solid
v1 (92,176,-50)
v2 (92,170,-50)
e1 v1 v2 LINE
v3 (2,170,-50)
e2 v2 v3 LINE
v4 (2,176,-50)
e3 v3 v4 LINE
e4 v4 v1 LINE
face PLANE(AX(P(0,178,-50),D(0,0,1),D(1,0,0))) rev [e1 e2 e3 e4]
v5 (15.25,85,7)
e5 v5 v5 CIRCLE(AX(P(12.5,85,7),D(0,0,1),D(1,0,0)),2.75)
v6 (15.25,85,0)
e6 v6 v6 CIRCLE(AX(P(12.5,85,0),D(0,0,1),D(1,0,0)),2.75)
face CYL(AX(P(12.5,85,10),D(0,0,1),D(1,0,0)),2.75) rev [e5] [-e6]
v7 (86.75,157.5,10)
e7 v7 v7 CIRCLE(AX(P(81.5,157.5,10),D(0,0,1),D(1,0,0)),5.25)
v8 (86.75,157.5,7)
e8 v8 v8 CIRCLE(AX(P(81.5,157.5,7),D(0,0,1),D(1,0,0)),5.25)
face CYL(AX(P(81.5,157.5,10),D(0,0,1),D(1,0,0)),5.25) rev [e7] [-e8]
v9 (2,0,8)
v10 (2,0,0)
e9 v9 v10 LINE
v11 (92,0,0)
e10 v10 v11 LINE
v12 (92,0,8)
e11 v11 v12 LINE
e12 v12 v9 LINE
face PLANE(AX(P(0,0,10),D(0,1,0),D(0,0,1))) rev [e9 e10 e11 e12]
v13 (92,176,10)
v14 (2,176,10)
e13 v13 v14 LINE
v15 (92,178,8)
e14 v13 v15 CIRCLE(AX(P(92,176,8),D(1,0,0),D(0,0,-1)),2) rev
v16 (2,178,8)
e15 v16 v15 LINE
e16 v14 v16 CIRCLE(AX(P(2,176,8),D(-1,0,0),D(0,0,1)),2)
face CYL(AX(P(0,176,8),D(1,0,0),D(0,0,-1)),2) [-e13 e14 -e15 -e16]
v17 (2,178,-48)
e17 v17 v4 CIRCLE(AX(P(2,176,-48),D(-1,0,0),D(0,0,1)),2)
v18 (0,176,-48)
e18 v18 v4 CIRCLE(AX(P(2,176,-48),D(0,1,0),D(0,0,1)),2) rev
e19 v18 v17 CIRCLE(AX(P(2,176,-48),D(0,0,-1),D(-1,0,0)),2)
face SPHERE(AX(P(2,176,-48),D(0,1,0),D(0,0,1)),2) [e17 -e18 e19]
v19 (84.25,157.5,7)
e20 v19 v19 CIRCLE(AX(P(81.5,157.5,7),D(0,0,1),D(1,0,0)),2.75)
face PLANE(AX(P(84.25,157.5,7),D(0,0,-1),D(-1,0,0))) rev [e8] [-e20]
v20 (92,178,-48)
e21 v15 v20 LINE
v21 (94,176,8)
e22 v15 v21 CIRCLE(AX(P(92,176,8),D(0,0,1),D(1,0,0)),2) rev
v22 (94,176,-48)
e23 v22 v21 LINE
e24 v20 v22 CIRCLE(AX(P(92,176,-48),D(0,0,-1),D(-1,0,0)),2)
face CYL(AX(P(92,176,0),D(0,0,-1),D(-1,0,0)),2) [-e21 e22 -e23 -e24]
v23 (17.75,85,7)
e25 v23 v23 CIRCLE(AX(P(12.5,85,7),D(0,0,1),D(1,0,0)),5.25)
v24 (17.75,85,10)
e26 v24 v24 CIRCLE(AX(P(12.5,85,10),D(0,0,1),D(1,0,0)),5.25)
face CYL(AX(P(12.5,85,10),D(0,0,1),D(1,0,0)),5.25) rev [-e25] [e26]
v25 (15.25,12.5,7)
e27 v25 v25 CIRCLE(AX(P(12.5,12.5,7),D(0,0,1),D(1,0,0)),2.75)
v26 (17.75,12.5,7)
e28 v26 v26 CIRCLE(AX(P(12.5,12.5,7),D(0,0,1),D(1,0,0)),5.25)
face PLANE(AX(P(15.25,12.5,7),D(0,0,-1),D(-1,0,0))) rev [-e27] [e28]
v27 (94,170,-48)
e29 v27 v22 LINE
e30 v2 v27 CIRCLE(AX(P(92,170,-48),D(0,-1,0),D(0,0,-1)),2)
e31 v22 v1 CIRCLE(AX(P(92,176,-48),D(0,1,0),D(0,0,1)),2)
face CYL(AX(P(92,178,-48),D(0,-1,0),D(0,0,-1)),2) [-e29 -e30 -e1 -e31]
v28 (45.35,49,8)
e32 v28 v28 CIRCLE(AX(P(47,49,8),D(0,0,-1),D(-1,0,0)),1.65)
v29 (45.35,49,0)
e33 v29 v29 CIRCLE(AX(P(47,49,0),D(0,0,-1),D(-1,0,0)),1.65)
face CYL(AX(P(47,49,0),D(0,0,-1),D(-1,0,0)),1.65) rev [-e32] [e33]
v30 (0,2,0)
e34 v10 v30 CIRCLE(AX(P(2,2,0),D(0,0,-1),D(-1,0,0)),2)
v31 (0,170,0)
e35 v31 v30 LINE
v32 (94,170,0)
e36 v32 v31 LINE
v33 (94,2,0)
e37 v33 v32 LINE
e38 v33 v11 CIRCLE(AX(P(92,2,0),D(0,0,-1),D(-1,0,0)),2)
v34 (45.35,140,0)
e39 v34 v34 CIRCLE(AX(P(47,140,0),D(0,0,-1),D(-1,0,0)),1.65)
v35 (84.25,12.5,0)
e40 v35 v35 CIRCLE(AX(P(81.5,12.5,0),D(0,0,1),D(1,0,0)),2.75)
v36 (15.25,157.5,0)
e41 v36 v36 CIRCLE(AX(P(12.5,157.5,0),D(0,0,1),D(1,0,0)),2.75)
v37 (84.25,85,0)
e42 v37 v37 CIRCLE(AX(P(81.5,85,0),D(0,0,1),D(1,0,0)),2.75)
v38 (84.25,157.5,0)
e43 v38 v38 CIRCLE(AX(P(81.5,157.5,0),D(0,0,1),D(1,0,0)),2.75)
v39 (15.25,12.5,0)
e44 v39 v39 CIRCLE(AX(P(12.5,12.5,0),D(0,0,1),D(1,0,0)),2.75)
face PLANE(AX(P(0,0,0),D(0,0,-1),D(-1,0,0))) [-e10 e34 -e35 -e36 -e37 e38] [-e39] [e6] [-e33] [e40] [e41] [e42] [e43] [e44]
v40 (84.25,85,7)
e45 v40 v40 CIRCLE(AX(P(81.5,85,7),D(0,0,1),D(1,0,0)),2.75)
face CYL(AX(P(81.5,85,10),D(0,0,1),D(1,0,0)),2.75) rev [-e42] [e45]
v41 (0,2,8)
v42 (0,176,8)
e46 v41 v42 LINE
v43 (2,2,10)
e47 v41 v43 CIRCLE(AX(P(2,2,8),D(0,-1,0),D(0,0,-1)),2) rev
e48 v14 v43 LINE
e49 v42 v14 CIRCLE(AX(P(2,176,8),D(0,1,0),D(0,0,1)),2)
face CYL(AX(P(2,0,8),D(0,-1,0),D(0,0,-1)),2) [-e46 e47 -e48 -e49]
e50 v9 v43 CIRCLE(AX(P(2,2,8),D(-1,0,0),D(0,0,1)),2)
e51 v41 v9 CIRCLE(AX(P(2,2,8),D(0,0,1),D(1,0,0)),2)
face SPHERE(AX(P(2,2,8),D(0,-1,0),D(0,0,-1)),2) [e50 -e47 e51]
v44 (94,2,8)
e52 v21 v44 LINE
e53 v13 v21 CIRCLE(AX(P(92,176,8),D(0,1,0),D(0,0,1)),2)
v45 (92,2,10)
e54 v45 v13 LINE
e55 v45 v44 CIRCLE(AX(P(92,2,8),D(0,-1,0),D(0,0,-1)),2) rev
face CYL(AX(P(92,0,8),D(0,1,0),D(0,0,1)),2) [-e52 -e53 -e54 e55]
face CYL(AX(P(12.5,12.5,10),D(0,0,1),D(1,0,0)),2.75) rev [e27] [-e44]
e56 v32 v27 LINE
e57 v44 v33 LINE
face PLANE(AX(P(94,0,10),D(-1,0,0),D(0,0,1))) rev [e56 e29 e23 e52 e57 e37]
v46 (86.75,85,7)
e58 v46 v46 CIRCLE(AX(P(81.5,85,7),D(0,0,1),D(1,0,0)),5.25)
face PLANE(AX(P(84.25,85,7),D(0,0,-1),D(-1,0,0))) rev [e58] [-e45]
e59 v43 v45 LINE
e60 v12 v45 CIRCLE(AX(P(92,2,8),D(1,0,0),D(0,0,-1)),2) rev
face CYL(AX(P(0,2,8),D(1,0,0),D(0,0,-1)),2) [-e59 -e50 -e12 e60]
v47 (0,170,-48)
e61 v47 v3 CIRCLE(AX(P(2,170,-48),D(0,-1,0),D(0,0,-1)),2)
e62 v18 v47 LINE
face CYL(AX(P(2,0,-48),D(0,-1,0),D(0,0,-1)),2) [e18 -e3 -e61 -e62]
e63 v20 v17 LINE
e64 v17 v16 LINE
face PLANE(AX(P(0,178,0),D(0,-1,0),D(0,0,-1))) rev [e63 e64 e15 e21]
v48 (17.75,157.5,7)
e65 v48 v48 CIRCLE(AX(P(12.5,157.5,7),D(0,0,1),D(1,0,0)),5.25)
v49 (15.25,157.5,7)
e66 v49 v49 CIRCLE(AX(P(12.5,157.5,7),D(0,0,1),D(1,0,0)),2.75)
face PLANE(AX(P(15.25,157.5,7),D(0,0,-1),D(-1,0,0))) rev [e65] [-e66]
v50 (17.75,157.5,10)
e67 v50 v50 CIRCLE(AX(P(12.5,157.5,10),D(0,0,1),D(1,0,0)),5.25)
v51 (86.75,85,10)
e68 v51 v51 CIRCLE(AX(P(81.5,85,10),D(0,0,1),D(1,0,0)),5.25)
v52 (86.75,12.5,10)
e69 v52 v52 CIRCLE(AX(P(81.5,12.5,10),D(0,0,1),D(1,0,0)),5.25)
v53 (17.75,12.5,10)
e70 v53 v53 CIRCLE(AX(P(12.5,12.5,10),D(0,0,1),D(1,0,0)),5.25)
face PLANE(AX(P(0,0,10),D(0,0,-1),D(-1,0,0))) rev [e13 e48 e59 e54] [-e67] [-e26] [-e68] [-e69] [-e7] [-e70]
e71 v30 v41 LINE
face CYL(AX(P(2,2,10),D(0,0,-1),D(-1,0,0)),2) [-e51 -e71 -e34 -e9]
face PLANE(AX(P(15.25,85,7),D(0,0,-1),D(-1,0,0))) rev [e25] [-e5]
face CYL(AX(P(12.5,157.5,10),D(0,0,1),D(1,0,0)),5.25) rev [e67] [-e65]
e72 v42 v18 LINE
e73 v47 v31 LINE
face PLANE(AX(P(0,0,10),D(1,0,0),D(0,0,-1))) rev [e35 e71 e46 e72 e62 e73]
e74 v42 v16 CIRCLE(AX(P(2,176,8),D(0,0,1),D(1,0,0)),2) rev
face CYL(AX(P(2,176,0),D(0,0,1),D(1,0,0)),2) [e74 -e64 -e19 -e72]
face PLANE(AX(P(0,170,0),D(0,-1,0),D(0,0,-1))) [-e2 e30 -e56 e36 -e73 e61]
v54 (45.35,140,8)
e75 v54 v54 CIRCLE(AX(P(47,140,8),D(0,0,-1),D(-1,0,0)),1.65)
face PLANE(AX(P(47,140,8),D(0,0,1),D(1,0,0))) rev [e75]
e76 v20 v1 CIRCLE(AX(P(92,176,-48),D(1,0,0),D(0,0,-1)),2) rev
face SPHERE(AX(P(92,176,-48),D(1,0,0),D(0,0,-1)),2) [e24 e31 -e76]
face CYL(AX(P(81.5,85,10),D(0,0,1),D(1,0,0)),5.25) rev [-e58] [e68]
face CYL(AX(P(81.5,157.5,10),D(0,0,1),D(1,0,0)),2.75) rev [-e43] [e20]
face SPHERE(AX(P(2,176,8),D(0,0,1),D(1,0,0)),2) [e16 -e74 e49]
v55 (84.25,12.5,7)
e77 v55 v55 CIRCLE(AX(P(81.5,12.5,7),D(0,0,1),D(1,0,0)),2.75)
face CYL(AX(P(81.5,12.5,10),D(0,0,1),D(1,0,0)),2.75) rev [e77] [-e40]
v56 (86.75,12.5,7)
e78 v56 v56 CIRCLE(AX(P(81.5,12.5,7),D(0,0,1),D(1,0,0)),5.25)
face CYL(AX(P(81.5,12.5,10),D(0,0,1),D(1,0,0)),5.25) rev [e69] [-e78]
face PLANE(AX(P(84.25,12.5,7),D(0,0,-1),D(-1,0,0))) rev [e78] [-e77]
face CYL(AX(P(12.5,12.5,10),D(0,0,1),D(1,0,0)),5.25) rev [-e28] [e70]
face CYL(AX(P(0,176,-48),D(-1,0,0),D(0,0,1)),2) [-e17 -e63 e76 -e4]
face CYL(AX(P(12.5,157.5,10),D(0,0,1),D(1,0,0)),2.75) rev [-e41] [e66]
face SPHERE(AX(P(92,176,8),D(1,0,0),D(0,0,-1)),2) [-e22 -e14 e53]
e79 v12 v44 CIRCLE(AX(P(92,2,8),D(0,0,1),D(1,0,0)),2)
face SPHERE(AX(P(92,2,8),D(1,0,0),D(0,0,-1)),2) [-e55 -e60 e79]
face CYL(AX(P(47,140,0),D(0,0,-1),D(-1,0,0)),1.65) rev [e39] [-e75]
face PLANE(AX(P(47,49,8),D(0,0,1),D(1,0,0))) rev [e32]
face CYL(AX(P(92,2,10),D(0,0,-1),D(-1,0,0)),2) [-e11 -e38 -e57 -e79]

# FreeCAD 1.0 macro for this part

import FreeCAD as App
import Part
import Sketcher
from FreeCAD import Vector
Q = App.Units.Quantity


def edges_at(feature, points):
    """Names of the edges that pass closest to the given points."""
    edges = feature.Shape.Edges
    near = lambda p: min(range(len(edges)), key=lambda i: edges[i].distToShape(Part.Vertex(*p))[0])
    return sorted({f"Edge{near(p) + 1}" for p in points})


def add_polygon(sketch, points):
    """Adds a closed chain of lines whose ends are joined by coincident constraints."""
    first, n = sketch.GeometryCount, len(points)
    for a, b in zip(points, points[1:] + points[:1]):
        sketch.addGeometry(Part.LineSegment(App.Vector(*a, 0), App.Vector(*b, 0)), False)
    for i in range(n):
        sketch.addConstraint(Sketcher.Constraint("Coincident", first + i, 2, first + (i + 1) % n, 1))

doc = App.newDocument("Part")
body = doc.addObject("PartDesign::Body", "Body")

# Sketch on XY plane
sketch1 = body.newObject("Sketcher::SketchObject", "Sketch")
sketch1.AttachmentSupport = (doc.getObject("XY_Plane"), [""])
sketch1.MapMode = "FlatFace"
add_polygon(sketch1, [(0, 170), (0, 0), (94, 0), (94, 170)])  # lines 0-3
sketch1.addConstraint(Sketcher.Constraint("Vertical", 0))
sketch1.addConstraint(Sketcher.Constraint("Horizontal", 1))
sketch1.addConstraint(Sketcher.Constraint("Vertical", 2))
sketch1.addConstraint(Sketcher.Constraint("Horizontal", 3))
sketch1.addConstraint(Sketcher.Constraint("Coincident", 0, 2, -1, 1))
sketch1.addConstraint(Sketcher.Constraint("DistanceX", 1, 1, 1, 2, Q("94 mm")))
sketch1.addConstraint(Sketcher.Constraint("DistanceY", 0, 2, 0, 1, Q("170 mm")))
pad1 = body.newObject("PartDesign::Pad", "Pad")
pad1.Profile = sketch1
pad1.Length = 10

# Sketch on XY plane
sketch2 = body.newObject("Sketcher::SketchObject", "Sketch001")
sketch2.AttachmentSupport = (doc.getObject("XY_Plane"), [""])
sketch2.MapMode = "FlatFace"
sketch2.AttachmentOffset = App.Placement(Vector(0, 0, 10), App.Rotation())
sketch2.addGeometry(Part.Circle(Vector(81.5, 157.5, 0), Vector(0, 0, 1), 2.8), False)
sketch2.addGeometry(Part.Circle(Vector(12.5, 85, 0), Vector(0, 0, 1), 2.8), False)
sketch2.addGeometry(Part.Circle(Vector(12.5, 157.5, 0), Vector(0, 0, 1), 2.8), False)
sketch2.addGeometry(Part.Circle(Vector(81.5, 85, 0), Vector(0, 0, 1), 2.8), False)
sketch2.addGeometry(Part.Circle(Vector(12.5, 12.5, 0), Vector(0, 0, 1), 2.8), False)
sketch2.addGeometry(Part.Circle(Vector(81.5, 12.5, 0), Vector(0, 0, 1), 2.8), False)
sketch2.addConstraint(Sketcher.Constraint("Equal", 0, 1))
sketch2.addConstraint(Sketcher.Constraint("Equal", 1, 2))
sketch2.addConstraint(Sketcher.Constraint("Equal", 2, 3))
sketch2.addConstraint(Sketcher.Constraint("Equal", 3, 4))
sketch2.addConstraint(Sketcher.Constraint("Equal", 4, 5))
sketch2.addConstraint(Sketcher.Constraint("Horizontal", 0, 3, 2, 3))
sketch2.addConstraint(Sketcher.Constraint("Horizontal", 1, 3, 3, 3))
sketch2.addConstraint(Sketcher.Constraint("Horizontal", 4, 3, 5, 3))
sketch2.addConstraint(Sketcher.Constraint("Vertical", 1, 3, 2, 3))
sketch2.addConstraint(Sketcher.Constraint("Vertical", 0, 3, 3, 3))
sketch2.addConstraint(Sketcher.Constraint("Vertical", 2, 3, 4, 3))
sketch2.addConstraint(Sketcher.Constraint("Vertical", 3, 3, 5, 3))
sketch2.addConstraint(Sketcher.Constraint("Diameter", 0, Q("5.5 mm")))
sketch2.addConstraint(Sketcher.Constraint("DistanceY", -1, 1, 1, 3, Q("85 mm")))
sketch2.addConstraint(Sketcher.Constraint("DistanceX", 1, 3, 0, 3, Q("69 mm")))
sketch2.addConstraint(Sketcher.Constraint("DistanceY", 4, 3, 2, 3, Q("145 mm")))
sketch2.addConstraint(Sketcher.Constraint("DistanceX", -1, 1, 0, 3, Q("81.5 mm")))
sketch2.addConstraint(Sketcher.Constraint("DistanceY", -1, 1, 0, 3, Q("157.5 mm")))
doc.recompute()
hole = body.newObject("PartDesign::Hole", "Hole")
hole.Profile = sketch2
hole.ThreadType = "None"
hole.Diameter = 5.5
hole.DepthType = "ThroughAll"
hole.HoleCutType = "Counterbore"
hole.HoleCutDiameter = 10.5
hole.HoleCutDepth = 3

# Sketch on XZ plane
sketch3 = body.newObject("Sketcher::SketchObject", "Sketch002")
sketch3.AttachmentSupport = (doc.getObject("XZ_Plane"), [""])
sketch3.MapMode = "FlatFace"
sketch3.AttachmentOffset = App.Placement(Vector(0, 0, -170), App.Rotation())
add_polygon(sketch3, [(0, -50), (0, 10), (94, 10), (94, -50)])  # lines 0-3
sketch3.addConstraint(Sketcher.Constraint("Vertical", 0))
sketch3.addConstraint(Sketcher.Constraint("Horizontal", 1))
sketch3.addConstraint(Sketcher.Constraint("Vertical", 2))
sketch3.addConstraint(Sketcher.Constraint("Horizontal", 3))
sketch3.addConstraint(Sketcher.Constraint("PointOnObject", 0, 2, -2))
sketch3.addConstraint(Sketcher.Constraint("DistanceX", 1, 1, 1, 2, Q("94 mm")))
sketch3.addConstraint(Sketcher.Constraint("DistanceY", 0, 1, 0, 2, Q("60 mm")))
sketch3.addConstraint(Sketcher.Constraint("DistanceY", -1, 1, 0, 2, Q("10 mm")))
pad2 = body.newObject("PartDesign::Pad", "Pad001")
pad2.Profile = sketch3
pad2.Length = 8
pad2.Reversed = True
doc.recompute()

fillet = body.newObject("PartDesign::Fillet", "Fillet")
fillet.Base = (pad2, edges_at(pad2, [
    (94, 89, 10),
    (0, 89, 10),
    (0, 174, -50),
    (94, 174, -50),
    (0, 178, -20),
    (47, 178, 10),
    (94, 178, -20),
    (47, 178, -50),
    (94, 0, 5),
    (0, 0, 5),
    (47, 0, 10),
]))
fillet.Radius = 2

# Sketch on XY plane
sketch4 = body.newObject("Sketcher::SketchObject", "Sketch003")
sketch4.AttachmentSupport = (doc.getObject("XY_Plane"), [""])
sketch4.MapMode = "FlatFace"
sketch4.addGeometry(Part.Circle(Vector(47, 140, 0), Vector(0, 0, 1), 1.6), False)
sketch4.addGeometry(Part.Circle(Vector(47, 49, 0), Vector(0, 0, 1), 1.6), False)
sketch4.addConstraint(Sketcher.Constraint("Equal", 0, 1))
sketch4.addConstraint(Sketcher.Constraint("Vertical", 0, 3, 1, 3))
sketch4.addConstraint(Sketcher.Constraint("Diameter", 0, Q("3.3 mm")))
sketch4.addConstraint(Sketcher.Constraint("DistanceX", -1, 1, 0, 3, Q("47 mm")))
sketch4.addConstraint(Sketcher.Constraint("DistanceY", -1, 1, 0, 3, Q("140 mm")))
sketch4.addConstraint(Sketcher.Constraint("DistanceY", -1, 1, 1, 3, Q("49 mm")))
doc.recompute()
hole2 = body.newObject("PartDesign::Hole", "Hole001")
hole2.Profile = sketch4
hole2.ThreadType = "None"
hole2.Diameter = 3.3
hole2.DepthType = "Dimension"
hole2.Depth = 8
hole2.DrillPoint = "Flat"
hole2.Reversed = True

doc.recompute()
